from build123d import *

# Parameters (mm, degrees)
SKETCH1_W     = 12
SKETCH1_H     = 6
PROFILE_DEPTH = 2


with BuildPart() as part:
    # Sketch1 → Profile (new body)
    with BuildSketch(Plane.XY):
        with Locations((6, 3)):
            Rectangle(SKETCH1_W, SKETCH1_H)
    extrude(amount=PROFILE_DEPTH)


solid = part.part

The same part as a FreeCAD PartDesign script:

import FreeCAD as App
import Part
import Sketcher

doc = App.newDocument("Part")
body = doc.addObject("PartDesign::Body", "Body")

# Sketch on XY plane
sketch1 = body.newObject("Sketcher::SketchObject", "Sketch")
sketch1.AttachmentSupport = (doc.getObject("XY_Plane"), [""])
sketch1.MapMode = "FlatFace"
sketch1.addGeometry([
    Part.LineSegment(App.Vector(0, 6, 0), App.Vector(0, 0, 0)),
    Part.LineSegment(App.Vector(0, 0, 0), App.Vector(12, 0, 0)),
    Part.LineSegment(App.Vector(12, 0, 0), App.Vector(12, 6, 0)),
    Part.LineSegment(App.Vector(12, 6, 0), App.Vector(0, 6, 0)),
], False)
sketch1.addConstraint([
    Sketcher.Constraint("Coincident", 0, 2, 1, 1),
    Sketcher.Constraint("Coincident", 1, 2, 2, 1),
    Sketcher.Constraint("Coincident", 2, 2, 3, 1),
    Sketcher.Constraint("Coincident", 3, 2, 0, 1),
    Sketcher.Constraint("Vertical", 0),
    Sketcher.Constraint("Horizontal", 1),
    Sketcher.Constraint("Vertical", 2),
    Sketcher.Constraint("Horizontal", 3),
    Sketcher.Constraint("Coincident", 0, 2, -1, 1),
    Sketcher.Constraint("DistanceX", 1, 1, 1, 2, 12.0),
    Sketcher.Constraint("DistanceY", 0, 2, 0, 1, 6.0),
])
pad1 = body.newObject("PartDesign::Pad", "Pad")
pad1.Profile = sketch1
pad1.Length = 2

doc.recompute()
